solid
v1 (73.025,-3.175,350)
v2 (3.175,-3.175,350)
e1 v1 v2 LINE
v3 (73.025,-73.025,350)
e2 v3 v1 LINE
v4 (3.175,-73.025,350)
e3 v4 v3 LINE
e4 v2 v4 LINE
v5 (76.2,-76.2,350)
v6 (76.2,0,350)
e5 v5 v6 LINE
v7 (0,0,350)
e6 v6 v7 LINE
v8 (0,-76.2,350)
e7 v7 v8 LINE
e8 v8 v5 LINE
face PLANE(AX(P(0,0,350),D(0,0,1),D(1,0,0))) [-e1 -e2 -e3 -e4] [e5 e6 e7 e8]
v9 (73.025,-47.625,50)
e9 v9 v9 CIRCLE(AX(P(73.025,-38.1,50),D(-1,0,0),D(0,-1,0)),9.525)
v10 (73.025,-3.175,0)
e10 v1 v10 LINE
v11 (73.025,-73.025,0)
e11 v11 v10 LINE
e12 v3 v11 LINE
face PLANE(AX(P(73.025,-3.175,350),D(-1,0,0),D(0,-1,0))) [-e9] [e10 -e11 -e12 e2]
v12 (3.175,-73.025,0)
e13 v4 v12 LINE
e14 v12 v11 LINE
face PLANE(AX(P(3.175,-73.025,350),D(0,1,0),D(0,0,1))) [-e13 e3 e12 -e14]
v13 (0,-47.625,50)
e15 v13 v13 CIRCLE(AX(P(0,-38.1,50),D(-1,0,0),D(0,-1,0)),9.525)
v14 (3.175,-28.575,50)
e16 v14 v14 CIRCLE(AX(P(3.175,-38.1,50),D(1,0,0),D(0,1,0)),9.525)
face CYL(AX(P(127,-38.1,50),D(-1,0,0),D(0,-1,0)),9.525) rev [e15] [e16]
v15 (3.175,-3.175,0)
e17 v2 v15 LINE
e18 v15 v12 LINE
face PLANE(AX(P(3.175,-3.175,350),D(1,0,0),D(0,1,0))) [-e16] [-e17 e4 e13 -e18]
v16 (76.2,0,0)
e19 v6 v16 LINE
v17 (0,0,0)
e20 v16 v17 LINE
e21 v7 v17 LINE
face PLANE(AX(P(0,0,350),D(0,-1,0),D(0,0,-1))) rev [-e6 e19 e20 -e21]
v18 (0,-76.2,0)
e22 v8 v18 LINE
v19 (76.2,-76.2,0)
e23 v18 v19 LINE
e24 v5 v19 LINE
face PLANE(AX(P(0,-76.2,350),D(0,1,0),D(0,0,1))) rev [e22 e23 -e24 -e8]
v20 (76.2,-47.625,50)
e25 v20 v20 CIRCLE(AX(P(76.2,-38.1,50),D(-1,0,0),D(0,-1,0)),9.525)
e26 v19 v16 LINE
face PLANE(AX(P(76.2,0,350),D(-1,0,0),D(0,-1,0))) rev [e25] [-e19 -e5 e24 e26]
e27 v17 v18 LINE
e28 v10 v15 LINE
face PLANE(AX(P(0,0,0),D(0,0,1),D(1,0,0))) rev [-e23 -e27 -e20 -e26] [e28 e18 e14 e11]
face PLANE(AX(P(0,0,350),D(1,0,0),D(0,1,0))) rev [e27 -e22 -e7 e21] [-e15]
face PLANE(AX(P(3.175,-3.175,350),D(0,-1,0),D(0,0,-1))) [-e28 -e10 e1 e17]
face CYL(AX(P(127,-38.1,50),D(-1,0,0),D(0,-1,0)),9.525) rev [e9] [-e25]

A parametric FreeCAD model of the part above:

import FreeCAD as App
import Part
import Sketcher

V = App.Vector
Q = App.Units.Quantity


def add_polygon(sketch, points):
    """Adds a closed chain of lines whose ends are joined by coincident constraints."""
    first, n = sketch.GeometryCount, len(points)
    for a, b in zip(points, points[1:] + points[:1]):
        sketch.addGeometry(Part.LineSegment(App.Vector(*a, 0), App.Vector(*b, 0)), False)
    for i in range(n):
        sketch.addConstraint(Sketcher.Constraint("Coincident", first + i, 2, first + (i + 1) % n, 1))

doc = App.newDocument("Part")
body = doc.addObject("PartDesign::Body", "Body")

sketch1 = doc.addObject("Sketcher::SketchObject", "Sketch")
body.addObject(sketch1)
sketch1.AttachmentSupport = (doc.XY_Plane, [""])
sketch1.MapMode = "FlatFace"
add_polygon(sketch1, [(0, 0), (0, -76), (76, -76), (76, 0)])
add_polygon(sketch1, [(73, -73), (3, -73), (3, -3), (73, -3)])
sketch1.addConstraint([
    Sketcher.Constraint("Vertical", 0),
    Sketcher.Constraint("Horizontal", 1),
    Sketcher.Constraint("Vertical", 2),
    Sketcher.Constraint("Horizontal", 3),
    Sketcher.Constraint("Horizontal", 4),
    Sketcher.Constraint("Vertical", 5),
    Sketcher.Constraint("Horizontal", 6),
    Sketcher.Constraint("Vertical", 7),
    Sketcher.Constraint("Coincident", 3, 2, -1, 1),
    Sketcher.Constraint("Equal", 3, 0),
    Sketcher.Constraint("Equal", 6, 5),
    Sketcher.Constraint("DistanceX", 1, 1, 1, 2, Q("3 in")),
    Sketcher.Constraint("DistanceX", 4, 2, 4, 1, Q("2.75 in")),
    Sketcher.Constraint("DistanceX", -1, 1, 4, 2, Q("0.125 in")),
    Sketcher.Constraint("DistanceY", 4, 2, -1, 1, Q("2.875 in")),
])
pad1 = doc.addObject("PartDesign::Pad", "Pad")
body.addObject(pad1)
pad1.Profile = sketch1
pad1.Length = 350

sketch2 = doc.addObject("Sketcher::SketchObject", "Sketch001")
body.addObject(sketch2)
sketch2.AttachmentSupport = (doc.YZ_Plane, [""])
sketch2.MapMode = "FlatFace"
sketch2.addGeometry(Part.Circle(V(-38, 50, 0), V(0, 0, 1), 10), False)
sketch2.addConstraint([
    Sketcher.Constraint("Diameter", 0, Q("0.75 in")),
    Sketcher.Constraint("DistanceX", 0, 3, -1, 1, Q("1.5 in")),
    Sketcher.Constraint("DistanceY", -1, 1, 0, 3, Q("50 mm")),
])
pocket1 = doc.addObject("PartDesign::Pocket", "Pocket")
body.addObject(pocket1)
pocket1.Profile = sketch2
pocket1.Length = Q("5 in")
pocket1.Reversed = True

doc.recompute()
